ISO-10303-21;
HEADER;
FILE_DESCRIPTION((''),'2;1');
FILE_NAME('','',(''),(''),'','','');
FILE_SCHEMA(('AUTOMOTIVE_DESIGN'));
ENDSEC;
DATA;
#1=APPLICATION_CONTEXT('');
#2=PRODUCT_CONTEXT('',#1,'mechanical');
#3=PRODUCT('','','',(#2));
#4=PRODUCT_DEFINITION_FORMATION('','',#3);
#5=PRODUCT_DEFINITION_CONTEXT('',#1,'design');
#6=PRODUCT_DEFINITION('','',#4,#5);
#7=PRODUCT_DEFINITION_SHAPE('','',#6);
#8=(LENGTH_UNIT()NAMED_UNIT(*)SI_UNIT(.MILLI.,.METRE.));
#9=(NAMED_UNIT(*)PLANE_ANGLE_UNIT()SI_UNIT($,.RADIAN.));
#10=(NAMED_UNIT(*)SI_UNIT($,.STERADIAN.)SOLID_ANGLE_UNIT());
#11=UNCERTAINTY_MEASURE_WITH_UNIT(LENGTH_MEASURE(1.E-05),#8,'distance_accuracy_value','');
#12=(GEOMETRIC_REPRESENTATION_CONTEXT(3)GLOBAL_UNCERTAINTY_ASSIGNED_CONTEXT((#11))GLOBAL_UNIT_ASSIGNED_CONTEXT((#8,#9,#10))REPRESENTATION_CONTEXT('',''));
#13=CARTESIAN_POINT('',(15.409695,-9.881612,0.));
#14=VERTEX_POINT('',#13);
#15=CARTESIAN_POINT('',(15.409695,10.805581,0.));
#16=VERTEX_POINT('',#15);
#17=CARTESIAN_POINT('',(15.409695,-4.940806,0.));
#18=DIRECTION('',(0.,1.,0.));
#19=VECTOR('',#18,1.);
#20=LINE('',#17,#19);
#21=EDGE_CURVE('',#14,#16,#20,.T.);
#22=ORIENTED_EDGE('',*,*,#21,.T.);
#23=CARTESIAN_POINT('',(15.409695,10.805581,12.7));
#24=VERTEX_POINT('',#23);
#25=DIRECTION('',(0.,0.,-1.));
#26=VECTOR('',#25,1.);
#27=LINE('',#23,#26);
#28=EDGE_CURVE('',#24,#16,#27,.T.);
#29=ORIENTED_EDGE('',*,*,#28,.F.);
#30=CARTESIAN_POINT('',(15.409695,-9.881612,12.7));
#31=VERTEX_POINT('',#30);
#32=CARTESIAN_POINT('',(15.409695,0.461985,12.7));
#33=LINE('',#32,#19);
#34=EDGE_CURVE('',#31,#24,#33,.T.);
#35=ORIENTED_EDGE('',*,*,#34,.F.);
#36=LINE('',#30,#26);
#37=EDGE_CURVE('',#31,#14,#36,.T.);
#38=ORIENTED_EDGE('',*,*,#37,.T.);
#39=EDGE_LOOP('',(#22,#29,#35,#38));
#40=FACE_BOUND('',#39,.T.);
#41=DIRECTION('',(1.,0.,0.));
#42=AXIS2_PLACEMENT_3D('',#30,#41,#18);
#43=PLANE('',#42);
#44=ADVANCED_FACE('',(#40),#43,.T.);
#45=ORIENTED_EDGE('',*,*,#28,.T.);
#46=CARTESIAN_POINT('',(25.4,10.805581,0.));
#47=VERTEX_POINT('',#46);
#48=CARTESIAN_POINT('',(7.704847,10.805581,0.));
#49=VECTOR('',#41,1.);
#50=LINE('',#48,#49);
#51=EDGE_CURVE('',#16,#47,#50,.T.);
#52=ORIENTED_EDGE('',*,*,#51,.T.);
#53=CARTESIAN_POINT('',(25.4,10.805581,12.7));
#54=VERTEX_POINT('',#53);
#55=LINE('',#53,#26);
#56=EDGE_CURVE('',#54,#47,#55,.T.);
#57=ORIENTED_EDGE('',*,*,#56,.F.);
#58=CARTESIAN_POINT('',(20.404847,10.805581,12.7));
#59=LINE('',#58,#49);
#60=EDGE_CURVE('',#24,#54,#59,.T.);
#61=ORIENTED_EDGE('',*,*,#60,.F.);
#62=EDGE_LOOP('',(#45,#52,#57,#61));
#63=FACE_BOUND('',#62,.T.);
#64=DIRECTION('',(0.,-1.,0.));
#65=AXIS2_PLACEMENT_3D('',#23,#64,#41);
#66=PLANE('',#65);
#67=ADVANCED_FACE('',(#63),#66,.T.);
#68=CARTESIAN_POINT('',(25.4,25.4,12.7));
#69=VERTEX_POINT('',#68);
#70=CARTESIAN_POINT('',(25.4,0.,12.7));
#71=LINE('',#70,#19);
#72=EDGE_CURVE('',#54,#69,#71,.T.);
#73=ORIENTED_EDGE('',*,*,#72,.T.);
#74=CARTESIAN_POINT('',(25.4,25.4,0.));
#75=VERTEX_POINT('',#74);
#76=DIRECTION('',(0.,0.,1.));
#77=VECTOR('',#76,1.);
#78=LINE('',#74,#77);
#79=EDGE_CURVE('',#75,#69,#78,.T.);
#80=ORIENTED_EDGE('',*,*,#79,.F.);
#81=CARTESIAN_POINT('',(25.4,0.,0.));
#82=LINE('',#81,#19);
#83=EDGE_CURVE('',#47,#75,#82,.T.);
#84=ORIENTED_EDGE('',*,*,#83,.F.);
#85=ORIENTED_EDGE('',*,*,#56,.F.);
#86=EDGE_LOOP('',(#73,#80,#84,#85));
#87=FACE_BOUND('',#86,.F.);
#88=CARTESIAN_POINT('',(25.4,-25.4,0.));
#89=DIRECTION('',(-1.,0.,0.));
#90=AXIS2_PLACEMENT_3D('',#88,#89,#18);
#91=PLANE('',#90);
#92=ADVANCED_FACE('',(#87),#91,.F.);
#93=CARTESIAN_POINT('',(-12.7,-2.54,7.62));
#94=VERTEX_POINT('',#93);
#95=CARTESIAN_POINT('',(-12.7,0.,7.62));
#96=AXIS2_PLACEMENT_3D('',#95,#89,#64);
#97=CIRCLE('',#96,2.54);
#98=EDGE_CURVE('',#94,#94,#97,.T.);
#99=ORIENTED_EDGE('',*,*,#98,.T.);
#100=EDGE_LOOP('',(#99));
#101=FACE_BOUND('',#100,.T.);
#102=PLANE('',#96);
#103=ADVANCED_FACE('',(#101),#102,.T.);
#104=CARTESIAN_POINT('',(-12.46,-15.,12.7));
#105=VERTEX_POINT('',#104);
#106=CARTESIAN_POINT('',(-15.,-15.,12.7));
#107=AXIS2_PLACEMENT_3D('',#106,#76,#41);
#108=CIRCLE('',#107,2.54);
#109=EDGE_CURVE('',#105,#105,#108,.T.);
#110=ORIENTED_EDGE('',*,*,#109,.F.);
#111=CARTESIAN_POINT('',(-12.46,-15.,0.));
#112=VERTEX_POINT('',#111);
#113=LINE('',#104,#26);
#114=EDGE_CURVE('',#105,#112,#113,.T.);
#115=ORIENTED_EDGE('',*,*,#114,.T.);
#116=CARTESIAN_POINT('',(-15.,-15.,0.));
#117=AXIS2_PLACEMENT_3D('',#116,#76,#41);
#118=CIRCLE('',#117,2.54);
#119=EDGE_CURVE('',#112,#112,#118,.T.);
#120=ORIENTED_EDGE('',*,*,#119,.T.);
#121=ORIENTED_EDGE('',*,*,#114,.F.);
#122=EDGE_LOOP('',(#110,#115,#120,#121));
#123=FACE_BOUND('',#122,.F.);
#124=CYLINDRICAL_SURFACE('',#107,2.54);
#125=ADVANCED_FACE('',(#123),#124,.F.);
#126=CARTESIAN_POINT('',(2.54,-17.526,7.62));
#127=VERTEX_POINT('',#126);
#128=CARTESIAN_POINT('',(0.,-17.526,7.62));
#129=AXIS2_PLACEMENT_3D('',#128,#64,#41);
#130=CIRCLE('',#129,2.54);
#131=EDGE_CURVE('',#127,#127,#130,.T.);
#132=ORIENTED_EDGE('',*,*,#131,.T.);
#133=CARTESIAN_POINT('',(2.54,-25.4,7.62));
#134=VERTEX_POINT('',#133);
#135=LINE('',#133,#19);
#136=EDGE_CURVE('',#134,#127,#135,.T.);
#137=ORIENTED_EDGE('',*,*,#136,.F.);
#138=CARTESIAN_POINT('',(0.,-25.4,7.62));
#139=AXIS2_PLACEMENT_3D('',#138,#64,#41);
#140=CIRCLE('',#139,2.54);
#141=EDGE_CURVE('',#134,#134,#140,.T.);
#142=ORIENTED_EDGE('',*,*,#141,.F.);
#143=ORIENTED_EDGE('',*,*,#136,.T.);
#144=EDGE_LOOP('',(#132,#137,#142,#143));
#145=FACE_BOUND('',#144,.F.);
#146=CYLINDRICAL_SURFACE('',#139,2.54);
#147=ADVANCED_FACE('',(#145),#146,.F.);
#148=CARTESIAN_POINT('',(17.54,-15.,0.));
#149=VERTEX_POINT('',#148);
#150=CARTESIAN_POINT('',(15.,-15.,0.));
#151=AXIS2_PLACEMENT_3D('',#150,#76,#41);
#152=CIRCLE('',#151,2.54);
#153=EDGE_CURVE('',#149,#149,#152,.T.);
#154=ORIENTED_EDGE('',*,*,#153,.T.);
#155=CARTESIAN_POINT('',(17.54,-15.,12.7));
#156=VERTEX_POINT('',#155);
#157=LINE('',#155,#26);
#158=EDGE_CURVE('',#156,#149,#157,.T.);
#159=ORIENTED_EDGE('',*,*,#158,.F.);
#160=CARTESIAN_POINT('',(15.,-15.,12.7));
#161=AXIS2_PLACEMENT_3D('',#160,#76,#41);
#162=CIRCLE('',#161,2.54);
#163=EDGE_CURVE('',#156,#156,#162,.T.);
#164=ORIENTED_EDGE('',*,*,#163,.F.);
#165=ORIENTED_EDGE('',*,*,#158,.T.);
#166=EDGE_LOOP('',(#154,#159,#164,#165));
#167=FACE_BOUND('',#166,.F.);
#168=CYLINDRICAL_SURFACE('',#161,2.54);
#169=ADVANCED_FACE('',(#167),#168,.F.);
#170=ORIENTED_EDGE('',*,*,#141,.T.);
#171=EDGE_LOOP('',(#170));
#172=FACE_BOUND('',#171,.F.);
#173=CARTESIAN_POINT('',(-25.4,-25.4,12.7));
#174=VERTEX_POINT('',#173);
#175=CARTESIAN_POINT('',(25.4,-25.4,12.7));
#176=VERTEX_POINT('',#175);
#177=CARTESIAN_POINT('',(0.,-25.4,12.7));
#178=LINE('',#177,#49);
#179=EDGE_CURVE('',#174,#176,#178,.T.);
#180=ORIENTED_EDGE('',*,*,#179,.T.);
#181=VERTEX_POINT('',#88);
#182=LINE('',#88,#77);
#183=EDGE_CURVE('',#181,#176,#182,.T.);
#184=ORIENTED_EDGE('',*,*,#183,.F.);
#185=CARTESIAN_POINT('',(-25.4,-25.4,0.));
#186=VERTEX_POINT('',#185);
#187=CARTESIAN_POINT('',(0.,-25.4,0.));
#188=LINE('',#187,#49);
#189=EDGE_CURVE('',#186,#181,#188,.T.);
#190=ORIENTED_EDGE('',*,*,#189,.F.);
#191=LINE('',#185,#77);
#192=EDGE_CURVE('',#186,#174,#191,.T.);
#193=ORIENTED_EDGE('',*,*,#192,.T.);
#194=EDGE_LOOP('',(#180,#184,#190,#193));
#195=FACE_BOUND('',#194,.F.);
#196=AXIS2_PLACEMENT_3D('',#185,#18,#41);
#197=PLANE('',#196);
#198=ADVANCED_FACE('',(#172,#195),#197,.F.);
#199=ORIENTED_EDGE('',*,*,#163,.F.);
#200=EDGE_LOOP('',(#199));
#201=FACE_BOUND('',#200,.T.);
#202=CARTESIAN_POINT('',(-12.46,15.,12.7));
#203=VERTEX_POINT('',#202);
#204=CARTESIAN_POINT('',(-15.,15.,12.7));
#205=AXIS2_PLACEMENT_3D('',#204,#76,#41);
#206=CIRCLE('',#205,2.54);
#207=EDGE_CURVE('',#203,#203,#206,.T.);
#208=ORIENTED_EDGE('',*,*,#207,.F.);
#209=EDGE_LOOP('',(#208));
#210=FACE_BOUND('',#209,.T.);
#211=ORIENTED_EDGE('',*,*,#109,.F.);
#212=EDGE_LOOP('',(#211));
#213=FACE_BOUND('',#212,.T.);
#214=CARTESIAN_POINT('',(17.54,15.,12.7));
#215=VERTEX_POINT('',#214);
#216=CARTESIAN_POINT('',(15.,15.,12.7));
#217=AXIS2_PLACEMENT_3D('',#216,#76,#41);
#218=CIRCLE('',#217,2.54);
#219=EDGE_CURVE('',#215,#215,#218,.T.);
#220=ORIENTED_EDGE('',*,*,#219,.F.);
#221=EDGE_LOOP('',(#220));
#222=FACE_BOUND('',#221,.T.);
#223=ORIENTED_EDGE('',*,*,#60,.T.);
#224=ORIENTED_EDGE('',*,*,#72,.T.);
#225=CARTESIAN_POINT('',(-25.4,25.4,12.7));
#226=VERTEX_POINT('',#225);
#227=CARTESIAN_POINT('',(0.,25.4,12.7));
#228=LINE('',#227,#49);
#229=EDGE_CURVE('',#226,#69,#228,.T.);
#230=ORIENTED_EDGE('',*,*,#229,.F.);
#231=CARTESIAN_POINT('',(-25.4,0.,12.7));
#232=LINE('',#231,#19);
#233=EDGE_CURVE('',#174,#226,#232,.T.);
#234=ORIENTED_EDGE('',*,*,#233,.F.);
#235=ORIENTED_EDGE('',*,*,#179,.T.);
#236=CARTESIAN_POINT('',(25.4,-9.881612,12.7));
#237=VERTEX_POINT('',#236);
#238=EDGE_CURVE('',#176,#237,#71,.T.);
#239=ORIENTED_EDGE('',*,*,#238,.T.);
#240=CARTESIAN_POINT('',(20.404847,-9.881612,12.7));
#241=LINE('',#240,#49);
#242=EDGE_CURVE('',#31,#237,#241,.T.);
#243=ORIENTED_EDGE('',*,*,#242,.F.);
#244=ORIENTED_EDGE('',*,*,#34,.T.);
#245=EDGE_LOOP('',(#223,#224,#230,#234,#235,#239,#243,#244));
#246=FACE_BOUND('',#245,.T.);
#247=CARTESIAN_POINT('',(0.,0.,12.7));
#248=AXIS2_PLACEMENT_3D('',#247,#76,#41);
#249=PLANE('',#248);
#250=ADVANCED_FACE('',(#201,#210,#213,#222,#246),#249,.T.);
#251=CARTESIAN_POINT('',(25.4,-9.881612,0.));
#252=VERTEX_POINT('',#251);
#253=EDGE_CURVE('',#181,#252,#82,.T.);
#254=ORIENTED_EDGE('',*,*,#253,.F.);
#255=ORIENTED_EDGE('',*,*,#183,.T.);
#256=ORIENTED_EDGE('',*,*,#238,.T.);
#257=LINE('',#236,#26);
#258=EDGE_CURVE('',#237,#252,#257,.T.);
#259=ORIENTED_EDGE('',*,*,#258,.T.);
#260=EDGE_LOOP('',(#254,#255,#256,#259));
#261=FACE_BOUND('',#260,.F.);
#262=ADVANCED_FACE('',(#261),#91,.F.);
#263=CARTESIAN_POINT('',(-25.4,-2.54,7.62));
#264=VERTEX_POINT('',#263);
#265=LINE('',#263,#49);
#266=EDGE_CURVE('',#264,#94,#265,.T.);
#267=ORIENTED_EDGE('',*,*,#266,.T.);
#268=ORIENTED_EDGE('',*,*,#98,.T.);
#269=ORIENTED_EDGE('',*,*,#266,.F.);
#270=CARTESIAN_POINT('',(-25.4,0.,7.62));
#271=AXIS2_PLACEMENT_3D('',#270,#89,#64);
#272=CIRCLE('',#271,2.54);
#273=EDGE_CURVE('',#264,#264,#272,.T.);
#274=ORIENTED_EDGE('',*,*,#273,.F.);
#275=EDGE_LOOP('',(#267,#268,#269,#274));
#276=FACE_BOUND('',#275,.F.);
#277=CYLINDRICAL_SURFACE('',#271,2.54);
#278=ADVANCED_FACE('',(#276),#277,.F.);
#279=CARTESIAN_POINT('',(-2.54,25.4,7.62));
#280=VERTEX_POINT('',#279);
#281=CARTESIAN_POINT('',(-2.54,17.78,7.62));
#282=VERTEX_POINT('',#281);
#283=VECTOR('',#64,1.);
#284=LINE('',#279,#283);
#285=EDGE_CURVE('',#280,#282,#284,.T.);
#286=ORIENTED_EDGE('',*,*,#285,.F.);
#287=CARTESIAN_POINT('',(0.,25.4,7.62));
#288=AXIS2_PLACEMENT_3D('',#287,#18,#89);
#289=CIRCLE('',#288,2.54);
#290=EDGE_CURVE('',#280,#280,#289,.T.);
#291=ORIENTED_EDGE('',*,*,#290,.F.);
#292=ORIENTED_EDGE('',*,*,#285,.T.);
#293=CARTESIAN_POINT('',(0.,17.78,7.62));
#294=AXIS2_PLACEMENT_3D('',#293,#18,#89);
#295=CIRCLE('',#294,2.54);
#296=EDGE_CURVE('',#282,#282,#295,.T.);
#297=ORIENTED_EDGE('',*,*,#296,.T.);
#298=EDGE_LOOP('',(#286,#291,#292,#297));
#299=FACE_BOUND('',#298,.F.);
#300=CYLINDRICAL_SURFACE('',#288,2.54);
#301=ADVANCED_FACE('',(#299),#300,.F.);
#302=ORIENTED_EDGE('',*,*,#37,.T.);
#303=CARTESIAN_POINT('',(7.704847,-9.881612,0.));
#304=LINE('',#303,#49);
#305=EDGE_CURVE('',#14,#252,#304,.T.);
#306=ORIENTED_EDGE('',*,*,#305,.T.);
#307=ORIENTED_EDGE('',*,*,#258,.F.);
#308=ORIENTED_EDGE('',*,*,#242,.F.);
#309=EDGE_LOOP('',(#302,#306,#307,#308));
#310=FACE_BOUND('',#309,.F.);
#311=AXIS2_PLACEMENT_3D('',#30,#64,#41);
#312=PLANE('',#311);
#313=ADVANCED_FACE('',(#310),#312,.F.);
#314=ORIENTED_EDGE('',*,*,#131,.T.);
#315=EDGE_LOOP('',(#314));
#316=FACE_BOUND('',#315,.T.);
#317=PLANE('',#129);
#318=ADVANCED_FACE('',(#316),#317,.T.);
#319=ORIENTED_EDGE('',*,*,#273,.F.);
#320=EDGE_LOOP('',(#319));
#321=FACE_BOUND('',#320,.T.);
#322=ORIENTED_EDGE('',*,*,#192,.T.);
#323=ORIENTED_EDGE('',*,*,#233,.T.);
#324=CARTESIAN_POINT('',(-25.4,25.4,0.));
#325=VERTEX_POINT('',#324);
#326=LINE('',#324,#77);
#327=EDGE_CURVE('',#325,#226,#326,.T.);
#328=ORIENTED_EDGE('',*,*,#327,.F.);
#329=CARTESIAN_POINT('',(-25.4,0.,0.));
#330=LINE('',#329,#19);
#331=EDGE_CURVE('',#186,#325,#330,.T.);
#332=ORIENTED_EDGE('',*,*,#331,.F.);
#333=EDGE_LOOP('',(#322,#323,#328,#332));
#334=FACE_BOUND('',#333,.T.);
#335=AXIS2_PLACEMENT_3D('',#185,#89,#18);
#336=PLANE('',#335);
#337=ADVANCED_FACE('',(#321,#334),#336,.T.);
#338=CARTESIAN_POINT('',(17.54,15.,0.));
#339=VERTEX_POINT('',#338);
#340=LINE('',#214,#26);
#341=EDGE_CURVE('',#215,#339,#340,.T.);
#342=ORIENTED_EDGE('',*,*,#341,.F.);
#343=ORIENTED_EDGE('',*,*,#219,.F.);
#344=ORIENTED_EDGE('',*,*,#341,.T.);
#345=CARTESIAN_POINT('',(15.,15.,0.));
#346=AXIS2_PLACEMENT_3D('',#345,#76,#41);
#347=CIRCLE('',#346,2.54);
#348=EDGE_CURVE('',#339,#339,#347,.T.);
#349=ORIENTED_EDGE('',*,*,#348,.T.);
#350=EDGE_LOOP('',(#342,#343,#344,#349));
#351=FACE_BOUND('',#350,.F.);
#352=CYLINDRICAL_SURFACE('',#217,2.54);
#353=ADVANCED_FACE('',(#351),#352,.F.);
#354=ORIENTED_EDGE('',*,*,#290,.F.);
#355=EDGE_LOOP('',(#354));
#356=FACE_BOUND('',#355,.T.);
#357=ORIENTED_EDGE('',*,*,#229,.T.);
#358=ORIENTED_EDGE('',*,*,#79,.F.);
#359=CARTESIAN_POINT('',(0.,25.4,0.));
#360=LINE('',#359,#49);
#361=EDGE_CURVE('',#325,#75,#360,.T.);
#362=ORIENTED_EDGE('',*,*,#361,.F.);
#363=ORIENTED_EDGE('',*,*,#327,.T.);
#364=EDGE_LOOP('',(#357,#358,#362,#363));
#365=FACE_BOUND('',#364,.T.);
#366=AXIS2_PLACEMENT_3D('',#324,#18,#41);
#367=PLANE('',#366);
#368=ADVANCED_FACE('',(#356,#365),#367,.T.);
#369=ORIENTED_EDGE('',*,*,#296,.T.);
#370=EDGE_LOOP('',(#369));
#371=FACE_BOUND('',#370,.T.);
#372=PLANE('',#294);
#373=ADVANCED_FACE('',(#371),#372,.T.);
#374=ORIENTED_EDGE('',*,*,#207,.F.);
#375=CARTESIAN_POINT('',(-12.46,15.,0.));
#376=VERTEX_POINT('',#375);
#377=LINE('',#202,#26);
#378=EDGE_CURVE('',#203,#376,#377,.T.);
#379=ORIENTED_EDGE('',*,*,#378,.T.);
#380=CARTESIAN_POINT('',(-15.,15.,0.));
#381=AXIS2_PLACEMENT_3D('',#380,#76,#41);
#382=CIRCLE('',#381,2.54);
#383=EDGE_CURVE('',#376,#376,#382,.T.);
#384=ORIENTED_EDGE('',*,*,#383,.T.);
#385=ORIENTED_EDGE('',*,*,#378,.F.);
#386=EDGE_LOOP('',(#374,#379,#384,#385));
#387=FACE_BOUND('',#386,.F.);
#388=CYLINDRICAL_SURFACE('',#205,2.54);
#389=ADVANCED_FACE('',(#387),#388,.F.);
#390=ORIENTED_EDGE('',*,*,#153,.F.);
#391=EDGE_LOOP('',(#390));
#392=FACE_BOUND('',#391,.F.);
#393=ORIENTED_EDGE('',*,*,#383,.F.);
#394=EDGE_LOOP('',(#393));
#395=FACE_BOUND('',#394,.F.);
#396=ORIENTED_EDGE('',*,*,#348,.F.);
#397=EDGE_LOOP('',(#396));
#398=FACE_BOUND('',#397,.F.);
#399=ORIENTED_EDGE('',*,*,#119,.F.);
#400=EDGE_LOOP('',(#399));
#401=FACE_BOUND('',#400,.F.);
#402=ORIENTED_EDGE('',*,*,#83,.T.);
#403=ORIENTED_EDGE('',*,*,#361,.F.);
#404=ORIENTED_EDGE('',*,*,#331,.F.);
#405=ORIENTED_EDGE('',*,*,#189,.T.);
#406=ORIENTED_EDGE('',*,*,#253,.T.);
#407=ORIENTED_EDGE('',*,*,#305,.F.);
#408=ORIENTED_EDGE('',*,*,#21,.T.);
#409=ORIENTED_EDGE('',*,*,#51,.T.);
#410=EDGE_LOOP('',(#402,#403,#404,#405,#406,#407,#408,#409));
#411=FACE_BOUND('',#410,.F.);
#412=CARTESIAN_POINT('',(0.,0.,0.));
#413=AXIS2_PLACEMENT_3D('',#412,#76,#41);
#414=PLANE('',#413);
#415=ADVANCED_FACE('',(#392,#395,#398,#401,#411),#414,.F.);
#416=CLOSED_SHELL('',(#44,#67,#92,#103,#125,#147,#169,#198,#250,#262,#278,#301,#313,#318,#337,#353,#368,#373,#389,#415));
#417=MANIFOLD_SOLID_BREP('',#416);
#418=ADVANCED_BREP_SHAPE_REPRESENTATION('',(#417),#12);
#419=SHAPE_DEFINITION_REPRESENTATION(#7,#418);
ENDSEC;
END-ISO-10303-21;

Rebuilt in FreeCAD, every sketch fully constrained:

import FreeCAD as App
import Part
import Sketcher
from FreeCAD import Vector
Q = App.Units.Quantity


def add_polygon(sketch, points):
    """Adds a closed chain of lines whose ends are joined by coincident constraints."""
    first, n = sketch.GeometryCount, len(points)
    for a, b in zip(points, points[1:] + points[:1]):
        sketch.addGeometry(Part.LineSegment(App.Vector(*a, 0), App.Vector(*b, 0)), False)
    for i in range(n):
        sketch.addConstraint(Sketcher.Constraint("Coincident", first + i, 2, first + (i + 1) % n, 1))

doc = App.newDocument("Part")
body = doc.addObject("PartDesign::Body", "Body")

sketch1 = doc.addObject("Sketcher::SketchObject", "Sketch")
body.addObject(sketch1)
sketch1.AttachmentSupport = (doc.XY_Plane, [""])
sketch1.MapMode = "FlatFace"
add_polygon(sketch1, [(-25, 25), (-25, -25), (25, -25), (25, 25)])
sketch1.addConstraint([
    Sketcher.Constraint("Vertical", 0),
    Sketcher.Constraint("Horizontal", 1),
    Sketcher.Constraint("Vertical", 2),
    Sketcher.Constraint("Horizontal", 3),
    Sketcher.Constraint("Symmetric", 0, 2, 2, 2, -1, 1),
    Sketcher.Constraint("Equal", 3, 0),
    Sketcher.Constraint("DistanceX", 1, 1, 1, 2, Q("2 in")),
])
pad1 = doc.addObject("PartDesign::Pad", "Pad")
body.addObject(pad1)
pad1.Profile = sketch1
pad1.Length = Q("0.5 in")

sketch2 = doc.addObject("Sketcher::SketchObject", "Sketch001")
body.addObject(sketch2)
sketch2.AttachmentSupport = (doc.XY_Plane, [""])
sketch2.MapMode = "FlatFace"
sketch2.AttachmentOffset = App.Placement(Vector(0, 0, 0.5 * 25.4), App.Rotation())
add_polygon(sketch2, [(15, 11), (15, -10), (25, -10), (25, 11)])
sketch2.addConstraint([
    Sketcher.Constraint("Vertical", 0),
    Sketcher.Constraint("Horizontal", 1),
    Sketcher.Constraint("Vertical", 2),
    Sketcher.Constraint("Horizontal", 3),
    Sketcher.Constraint("DistanceX", -1, 1, 1, 2, Q("1 in")),
    Sketcher.Constraint("DistanceX", 1, 1, 1, 2, Q("9.990305 mm")),
    Sketcher.Constraint("DistanceY", 0, 2, 0, 1, Q("20.687194 mm")),
    Sketcher.Constraint("DistanceY", -1, 1, 2, 2, Q("10.805581 mm")),
])
pocket1 = doc.addObject("PartDesign::Pocket", "Pocket")
body.addObject(pocket1)
pocket1.Profile = sketch2
pocket1.Length = Q("1 in")

sketch3 = doc.addObject("Sketcher::SketchObject", "Sketch002")
body.addObject(sketch3)
sketch3.AttachmentSupport = (doc.XY_Plane, [""])
sketch3.MapMode = "FlatFace"
sketch3.AttachmentOffset = App.Placement(Vector(0, 0, 0.5 * 25.4), App.Rotation())
sketch3.addGeometry([
    Part.Circle(Vector(-15, 15, 0), Vector(0, 0, 1), 2.5),
    Part.Circle(Vector(15, 15, 0), Vector(0, 0, 1), 2.5),
    Part.Circle(Vector(-15, -15, 0), Vector(0, 0, 1), 2.5),
    Part.Circle(Vector(15, -15, 0), Vector(0, 0, 1), 2.5),
], False)
sketch3.addConstraint([
    Sketcher.Constraint("Equal", 0, 1),
    Sketcher.Constraint("Equal", 1, 2),
    Sketcher.Constraint("Equal", 2, 3),
    Sketcher.Constraint("Symmetric", 1, 3, 2, 3, -1, 1),
    Sketcher.Constraint("Symmetric", 0, 3, 3, 3, -1, 1),
    Sketcher.Constraint("Symmetric", 0, 3, 1, 3, -2),
    Sketcher.Constraint("Diameter", 0, Q("0.2 in")),
    Sketcher.Constraint("DistanceX", 0, 3, -1, 1, Q("15 mm")),
    Sketcher.Constraint("DistanceY", -1, 1, 0, 3, Q("15 mm")),
])
pocket2 = doc.addObject("PartDesign::Pocket", "Pocket001")
body.addObject(pocket2)
pocket2.Profile = sketch3
pocket2.Length = Q("1 in")

sketch4 = doc.addObject("Sketcher::SketchObject", "Sketch003")
body.addObject(sketch4)
sketch4.AttachmentSupport = (doc.XZ_Plane, [""])
sketch4.MapMode = "FlatFace"
sketch4.AttachmentOffset = App.Placement(Vector(0, 0, 1 * 25.4), App.Rotation())
sketch4.addGeometry(Part.Circle(Vector(0, 7.6, 0), Vector(0, 0, 1), 2.5), False)
sketch4.addConstraint([
    Sketcher.Constraint("PointOnObject", 0, 3, -2),
    Sketcher.Constraint("Diameter", 0, Q("0.2 in")),
    Sketcher.Constraint("DistanceY", -1, 1, 0, 3, Q("0.3 in")),
])
pocket3 = doc.addObject("PartDesign::Pocket", "Pocket002")
body.addObject(pocket3)
pocket3.Profile = sketch4
pocket3.Length = Q("0.31 in")

sketch5 = doc.addObject("Sketcher::SketchObject", "Sketch004")
body.addObject(sketch5)
sketch5.AttachmentSupport = (doc.YZ_Plane, [""])
sketch5.MapMode = "FlatFace"
sketch5.AttachmentOffset = App.Placement(Vector(0, 0, -1 * 25.4), App.Rotation())
sketch5.addGeometry(Part.Circle(Vector(0, 7.6, 0), Vector(0, 0, 1), 2.5), False)
sketch5.addConstraint([
    Sketcher.Constraint("PointOnObject", 0, 3, -2),
    Sketcher.Constraint("Diameter", 0, Q("0.2 in")),
    Sketcher.Constraint("DistanceY", -1, 1, 0, 3, Q("0.3 in")),
])
pocket4 = doc.addObject("PartDesign::Pocket", "Pocket003")
body.addObject(pocket4)
pocket4.Profile = sketch5
pocket4.Length = Q("0.5 in")
pocket4.Reversed = True

sketch6 = doc.addObject("Sketcher::SketchObject", "Sketch005")
body.addObject(sketch6)
sketch6.AttachmentSupport = (doc.XZ_Plane, [""])
sketch6.MapMode = "FlatFace"
sketch6.AttachmentOffset = App.Placement(Vector(0, 0, -1 * 25.4), App.Rotation())
sketch6.addGeometry(Part.Circle(Vector(0, 7.6, 0), Vector(0, 0, 1), 2.5), False)
sketch6.addConstraint([
    Sketcher.Constraint("PointOnObject", 0, 3, -2),
    Sketcher.Constraint("Diameter", 0, Q("0.2 in")),
    Sketcher.Constraint("DistanceY", -1, 1, 0, 3, Q("0.3 in")),
])
pocket5 = doc.addObject("PartDesign::Pocket", "Pocket004")
body.addObject(pocket5)
pocket5.Profile = sketch6
pocket5.Length = Q("0.3 in")
pocket5.Reversed = True

doc.recompute()
